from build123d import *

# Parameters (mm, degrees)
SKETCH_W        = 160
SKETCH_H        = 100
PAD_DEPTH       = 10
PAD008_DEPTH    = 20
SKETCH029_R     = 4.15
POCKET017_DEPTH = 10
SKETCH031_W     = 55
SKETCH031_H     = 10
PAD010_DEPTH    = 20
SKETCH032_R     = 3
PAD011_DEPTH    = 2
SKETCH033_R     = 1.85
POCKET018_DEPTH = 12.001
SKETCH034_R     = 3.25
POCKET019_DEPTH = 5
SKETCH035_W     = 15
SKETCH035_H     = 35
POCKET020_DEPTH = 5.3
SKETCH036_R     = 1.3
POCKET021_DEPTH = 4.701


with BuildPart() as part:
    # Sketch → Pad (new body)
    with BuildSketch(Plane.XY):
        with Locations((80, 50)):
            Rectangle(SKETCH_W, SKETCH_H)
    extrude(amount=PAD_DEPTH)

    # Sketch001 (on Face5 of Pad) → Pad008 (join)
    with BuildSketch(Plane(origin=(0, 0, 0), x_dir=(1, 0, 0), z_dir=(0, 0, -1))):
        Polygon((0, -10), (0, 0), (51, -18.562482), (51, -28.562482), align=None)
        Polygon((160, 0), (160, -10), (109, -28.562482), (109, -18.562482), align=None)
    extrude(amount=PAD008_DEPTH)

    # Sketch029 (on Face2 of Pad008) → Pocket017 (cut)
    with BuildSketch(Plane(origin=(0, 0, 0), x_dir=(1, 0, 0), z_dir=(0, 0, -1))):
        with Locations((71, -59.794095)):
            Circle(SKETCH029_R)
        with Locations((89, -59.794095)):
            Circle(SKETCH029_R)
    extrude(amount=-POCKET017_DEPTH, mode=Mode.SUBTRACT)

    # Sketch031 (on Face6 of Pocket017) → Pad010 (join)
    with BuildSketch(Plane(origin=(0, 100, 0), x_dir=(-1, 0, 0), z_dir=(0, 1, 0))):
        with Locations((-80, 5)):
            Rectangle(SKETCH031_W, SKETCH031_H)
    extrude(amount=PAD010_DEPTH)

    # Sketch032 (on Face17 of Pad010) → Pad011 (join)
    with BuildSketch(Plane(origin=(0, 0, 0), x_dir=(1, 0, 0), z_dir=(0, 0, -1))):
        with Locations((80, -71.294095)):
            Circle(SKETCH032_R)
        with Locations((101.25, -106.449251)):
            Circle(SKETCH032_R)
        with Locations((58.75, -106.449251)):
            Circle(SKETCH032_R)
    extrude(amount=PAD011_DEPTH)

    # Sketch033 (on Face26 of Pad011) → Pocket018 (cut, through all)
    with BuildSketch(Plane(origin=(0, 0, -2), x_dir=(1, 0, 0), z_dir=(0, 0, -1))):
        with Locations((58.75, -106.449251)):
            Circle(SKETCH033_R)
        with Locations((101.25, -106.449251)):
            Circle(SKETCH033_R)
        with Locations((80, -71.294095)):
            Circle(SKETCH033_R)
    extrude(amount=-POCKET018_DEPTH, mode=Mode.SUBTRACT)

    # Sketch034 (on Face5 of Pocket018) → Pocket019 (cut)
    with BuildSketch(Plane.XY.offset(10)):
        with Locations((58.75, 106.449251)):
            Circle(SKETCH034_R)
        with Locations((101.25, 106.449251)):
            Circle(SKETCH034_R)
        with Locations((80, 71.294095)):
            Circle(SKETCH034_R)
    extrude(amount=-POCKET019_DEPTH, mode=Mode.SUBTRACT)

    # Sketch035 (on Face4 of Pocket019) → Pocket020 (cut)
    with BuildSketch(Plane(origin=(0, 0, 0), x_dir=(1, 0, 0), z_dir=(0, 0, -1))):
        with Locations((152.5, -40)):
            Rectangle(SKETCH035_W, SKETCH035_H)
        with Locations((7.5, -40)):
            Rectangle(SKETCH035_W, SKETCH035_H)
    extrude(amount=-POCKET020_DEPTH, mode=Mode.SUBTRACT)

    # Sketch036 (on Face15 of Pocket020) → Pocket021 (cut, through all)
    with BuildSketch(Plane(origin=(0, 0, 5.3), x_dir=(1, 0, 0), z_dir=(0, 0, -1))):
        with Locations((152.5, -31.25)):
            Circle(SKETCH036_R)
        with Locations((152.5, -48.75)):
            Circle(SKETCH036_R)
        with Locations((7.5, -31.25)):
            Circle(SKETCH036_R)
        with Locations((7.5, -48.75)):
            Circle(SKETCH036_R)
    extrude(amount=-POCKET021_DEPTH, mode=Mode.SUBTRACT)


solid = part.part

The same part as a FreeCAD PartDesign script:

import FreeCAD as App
import Part
import Sketcher
Q = App.Units.Quantity

doc = App.newDocument("Part")
params = doc.addObject("Spreadsheet::Sheet", "Params")
for row, (alias, value) in enumerate([
    ("sketch1_width", "160 mm"),
    ("sketch1_height", "100 mm"),
    ("pad1_length", "10 mm"),
    ("sketch2_height", "10 mm"),
    ("pad2_length", "20 mm"),
    ("sketch3_diameter", "8.3 mm"),
    ("pocket1_length", "10 mm"),
    ("sketch4_width", "55 mm"),
    ("sketch4_height", "10 mm"),
    ("pad3_length", "20 mm"),
    ("sketch5_diameter", "6 mm"),
    ("pad4_length", "2 mm"),
    ("sketch6_diameter", "3.7 mm"),
    ("sketch7_diameter", "6.5 mm"),
    ("pocket3_length", "5 mm"),
    ("sketch8_width", "15 mm"),
    ("sketch8_height", "35 mm"),
    ("pocket4_length", "5.3 mm"),
    ("sketch9_diameter", "2.6 mm"),
], start=1):
    params.set(f"A{row}", alias)
    params.set(f"B{row}", "=" + value)
    params.setAlias(f"B{row}", alias)

body = doc.addObject("PartDesign::Body", "Body")

# Sketch on XY plane
sketch1 = doc.addObject("Sketcher::SketchObject", "Sketch")
body.addObject(sketch1)
sketch1.AttachmentSupport = (doc.XY_Plane, [""])
sketch1.MapMode = "FlatFace"
sketch1.addGeometry(Part.LineSegment(App.Vector(0, 100, 0), App.Vector(0, 0, 0)), False)
sketch1.addGeometry(Part.LineSegment(App.Vector(0, 0, 0), App.Vector(160, 0, 0)), False)
sketch1.addGeometry(Part.LineSegment(App.Vector(160, 0, 0), App.Vector(160, 100, 0)), False)
sketch1.addGeometry(Part.LineSegment(App.Vector(160, 100, 0), App.Vector(0, 100, 0)), False)
sketch1.addConstraint(Sketcher.Constraint("Coincident", 0, 2, 1, 1))
sketch1.addConstraint(Sketcher.Constraint("Coincident", 1, 2, 2, 1))
sketch1.addConstraint(Sketcher.Constraint("Coincident", 2, 2, 3, 1))
sketch1.addConstraint(Sketcher.Constraint("Coincident", 3, 2, 0, 1))
sketch1.addConstraint(Sketcher.Constraint("Vertical", 0))
sketch1.addConstraint(Sketcher.Constraint("Horizontal", 1))
sketch1.addConstraint(Sketcher.Constraint("Vertical", 2))
sketch1.addConstraint(Sketcher.Constraint("Horizontal", 3))
sketch1.addConstraint(Sketcher.Constraint("Coincident", 0, 2, -1, 1))
sketch1.addConstraint(Sketcher.Constraint("DistanceX", 1, 1, 1, 2, 160.0))
sketch1.addConstraint(Sketcher.Constraint("DistanceY", 0, 2, 0, 1, 100.0))
sketch1.setExpression("Constraints[9]", "Params.sketch1_width")
sketch1.setExpression("Constraints[10]", "Params.sketch1_height")
pad1 = doc.addObject("PartDesign::Pad", "Pad")
body.addObject(pad1)
pad1.Profile = sketch1
pad1.setExpression("Length", "Params.pad1_length")

# Sketch on XY plane
sketch2 = doc.addObject("Sketcher::SketchObject", "Sketch001")
body.addObject(sketch2)
sketch2.AttachmentSupport = (doc.XY_Plane, [""])
sketch2.MapMode = "FlatFace"
sketch2.addGeometry(Part.LineSegment(App.Vector(0, 0, 0), App.Vector(0, 10, 0)), False)
sketch2.addGeometry(Part.LineSegment(App.Vector(0, 10, 0), App.Vector(51, 28.562482, 0)), False)
sketch2.addGeometry(Part.LineSegment(App.Vector(51, 28.562482, 0), App.Vector(51, 18.562482, 0)), False)
sketch2.addGeometry(Part.LineSegment(App.Vector(51, 18.562482, 0), App.Vector(0, 0, 0)), False)
sketch2.addGeometry(Part.LineSegment(App.Vector(160, 10, 0), App.Vector(160, 0, 0)), False)
sketch2.addGeometry(Part.LineSegment(App.Vector(160, 0, 0), App.Vector(109, 18.562482, 0)), False)
sketch2.addGeometry(Part.LineSegment(App.Vector(109, 18.562482, 0), App.Vector(109, 28.562482, 0)), False)
sketch2.addGeometry(Part.LineSegment(App.Vector(109, 28.562482, 0), App.Vector(160, 10, 0)), False)
sketch2.addConstraint(Sketcher.Constraint("Coincident", 0, 2, 1, 1))
sketch2.addConstraint(Sketcher.Constraint("Coincident", 1, 2, 2, 1))
sketch2.addConstraint(Sketcher.Constraint("Coincident", 2, 2, 3, 1))
sketch2.addConstraint(Sketcher.Constraint("Coincident", 3, 2, 0, 1))
sketch2.addConstraint(Sketcher.Constraint("Coincident", 4, 2, 5, 1))
sketch2.addConstraint(Sketcher.Constraint("Coincident", 5, 2, 6, 1))
sketch2.addConstraint(Sketcher.Constraint("Coincident", 6, 2, 7, 1))
sketch2.addConstraint(Sketcher.Constraint("Coincident", 7, 2, 4, 1))
sketch2.addConstraint(Sketcher.Constraint("Vertical", 0))
sketch2.addConstraint(Sketcher.Constraint("Vertical", 2))
sketch2.addConstraint(Sketcher.Constraint("Vertical", 4))
sketch2.addConstraint(Sketcher.Constraint("Vertical", 6))
sketch2.addConstraint(Sketcher.Constraint("Coincident", 3, 2, -1, 1))
sketch2.addConstraint(Sketcher.Constraint("PointOnObject", 4, 2, -1))
sketch2.addConstraint(Sketcher.Constraint("Parallel", 1, 3))
sketch2.addConstraint(Sketcher.Constraint("Parallel", 5, 7))
sketch2.addConstraint(Sketcher.Constraint("Horizontal", 2, 2, 5, 2))
sketch2.addConstraint(Sketcher.Constraint("Horizontal", 1, 2, 6, 2))
sketch2.addConstraint(Sketcher.Constraint("Equal", 3, 5))
sketch2.addConstraint(Sketcher.Constraint("DistanceY", 0, 1, 0, 2, 10.0))
sketch2.addConstraint(Sketcher.Constraint("Angle", 1, Q("20 deg")))
sketch2.addConstraint(Sketcher.Constraint("DistanceX", -1, 1, 1, 2, 51.0))
sketch2.addConstraint(Sketcher.Constraint("DistanceX", -1, 1, 4, 2, 160.0))
sketch2.setExpression("Constraints[19]", "Params.sketch2_height")
pad2 = doc.addObject("PartDesign::Pad", "Pad001")
body.addObject(pad2)
pad2.Profile = sketch2
pad2.setExpression("Length", "Params.pad2_length")
pad2.Reversed = True

# Sketch on XY plane
sketch3 = doc.addObject("Sketcher::SketchObject", "Sketch002")
body.addObject(sketch3)
sketch3.AttachmentSupport = (doc.XY_Plane, [""])
sketch3.MapMode = "FlatFace"
sketch3.addGeometry(Part.Circle(App.Vector(71, 59.8, 0), App.Vector(0, 0, 1), 4.2), False)
sketch3.addGeometry(Part.Circle(App.Vector(89, 59.8, 0), App.Vector(0, 0, 1), 4.2), False)
sketch3.addConstraint(Sketcher.Constraint("Equal", 0, 1))
sketch3.addConstraint(Sketcher.Constraint("Horizontal", 0, 3, 1, 3))
sketch3.addConstraint(Sketcher.Constraint("Diameter", 0, 8.3))
sketch3.addConstraint(Sketcher.Constraint("DistanceX", -1, 1, 0, 3, 71.0))
sketch3.addConstraint(Sketcher.Constraint("DistanceX", -1, 1, 1, 3, 89.0))
sketch3.addConstraint(Sketcher.Constraint("DistanceY", -1, 1, 0, 3, 59.794095))
sketch3.setExpression("Constraints[2]", "Params.sketch3_diameter")
pocket1 = doc.addObject("PartDesign::Pocket", "Pocket")
body.addObject(pocket1)
pocket1.Profile = sketch3
pocket1.setExpression("Length", "Params.pocket1_length")
pocket1.Reversed = True

# Sketch on XZ plane
sketch4 = doc.addObject("Sketcher::SketchObject", "Sketch003")
body.addObject(sketch4)
sketch4.AttachmentSupport = (doc.XZ_Plane, [""])
sketch4.MapMode = "FlatFace"
sketch4.AttachmentOffset = App.Placement(App.Vector(0, 0, -100), App.Rotation())
sketch4.addGeometry(Part.LineSegment(App.Vector(108, 10, 0), App.Vector(108, 0, 0)), False)
sketch4.addGeometry(Part.LineSegment(App.Vector(108, 0, 0), App.Vector(52, 0, 0)), False)
sketch4.addGeometry(Part.LineSegment(App.Vector(52, 0, 0), App.Vector(52, 10, 0)), False)
sketch4.addGeometry(Part.LineSegment(App.Vector(52, 10, 0), App.Vector(108, 10, 0)), False)
sketch4.addConstraint(Sketcher.Constraint("Coincident", 0, 2, 1, 1))
sketch4.addConstraint(Sketcher.Constraint("Coincident", 1, 2, 2, 1))
sketch4.addConstraint(Sketcher.Constraint("Coincident", 2, 2, 3, 1))
sketch4.addConstraint(Sketcher.Constraint("Coincident", 3, 2, 0, 1))
sketch4.addConstraint(Sketcher.Constraint("Vertical", 0))
sketch4.addConstraint(Sketcher.Constraint("Horizontal", 1))
sketch4.addConstraint(Sketcher.Constraint("Vertical", 2))
sketch4.addConstraint(Sketcher.Constraint("Horizontal", 3))
sketch4.addConstraint(Sketcher.Constraint("PointOnObject", 0, 2, -1))
sketch4.addConstraint(Sketcher.Constraint("DistanceX", 1, 2, 1, 1, 55.0))
sketch4.addConstraint(Sketcher.Constraint("DistanceY", 0, 2, 0, 1, 10.0))
sketch4.addConstraint(Sketcher.Constraint("DistanceX", -1, 1, 0, 2, 107.5))
sketch4.setExpression("Constraints[9]", "Params.sketch4_width")
sketch4.setExpression("Constraints[10]", "Params.sketch4_height")
pad3 = doc.addObject("PartDesign::Pad", "Pad002")
body.addObject(pad3)
pad3.Profile = sketch4
pad3.setExpression("Length", "Params.pad3_length")
pad3.Reversed = True

# Sketch on XY plane
sketch5 = doc.addObject("Sketcher::SketchObject", "Sketch004")
body.addObject(sketch5)
sketch5.AttachmentSupport = (doc.XY_Plane, [""])
sketch5.MapMode = "FlatFace"
sketch5.addGeometry(Part.Circle(App.Vector(80, 71.3, 0), App.Vector(0, 0, 1), 3), False)
sketch5.addGeometry(Part.Circle(App.Vector(101.2, 106.4, 0), App.Vector(0, 0, 1), 3), False)
sketch5.addGeometry(Part.Circle(App.Vector(58.8, 106.4, 0), App.Vector(0, 0, 1), 3), False)
sketch5.addConstraint(Sketcher.Constraint("Equal", 0, 1))
sketch5.addConstraint(Sketcher.Constraint("Equal", 1, 2))
sketch5.addConstraint(Sketcher.Constraint("Horizontal", 1, 3, 2, 3))
sketch5.addConstraint(Sketcher.Constraint("Diameter", 0, 6.0))
sketch5.addConstraint(Sketcher.Constraint("DistanceX", -1, 1, 0, 3, 80.0))
sketch5.addConstraint(Sketcher.Constraint("DistanceX", 2, 3, 1, 3, 42.5))
sketch5.addConstraint(Sketcher.Constraint("DistanceX", -1, 1, 1, 3, 101.25))
sketch5.addConstraint(Sketcher.Constraint("DistanceY", -1, 1, 1, 3, 106.449251))
sketch5.addConstraint(Sketcher.Constraint("DistanceY", -1, 1, 0, 3, 71.294095))
sketch5.setExpression("Constraints[3]", "Params.sketch5_diameter")
pad4 = doc.addObject("PartDesign::Pad", "Pad003")
body.addObject(pad4)
pad4.Profile = sketch5
pad4.setExpression("Length", "Params.pad4_length")
pad4.Reversed = True

# Sketch on XY plane
sketch6 = doc.addObject("Sketcher::SketchObject", "Sketch005")
body.addObject(sketch6)
sketch6.AttachmentSupport = (doc.XY_Plane, [""])
sketch6.MapMode = "FlatFace"
sketch6.AttachmentOffset = App.Placement(App.Vector(0, 0, -2), App.Rotation())
sketch6.addGeometry(Part.Circle(App.Vector(58.8, 106.4, 0), App.Vector(0, 0, 1), 1.9), False)
sketch6.addGeometry(Part.Circle(App.Vector(101.2, 106.4, 0), App.Vector(0, 0, 1), 1.9), False)
sketch6.addGeometry(Part.Circle(App.Vector(80, 71.3, 0), App.Vector(0, 0, 1), 1.9), False)
sketch6.addConstraint(Sketcher.Constraint("Equal", 0, 1))
sketch6.addConstraint(Sketcher.Constraint("Equal", 1, 2))
sketch6.addConstraint(Sketcher.Constraint("Horizontal", 0, 3, 1, 3))
sketch6.addConstraint(Sketcher.Constraint("Diameter", 0, 3.7))
sketch6.addConstraint(Sketcher.Constraint("DistanceX", -1, 1, 2, 3, 80.0))
sketch6.addConstraint(Sketcher.Constraint("DistanceX", 0, 3, 1, 3, 42.5))
sketch6.addConstraint(Sketcher.Constraint("DistanceX", -1, 1, 0, 3, 58.75))
sketch6.addConstraint(Sketcher.Constraint("DistanceY", -1, 1, 0, 3, 106.449251))
sketch6.addConstraint(Sketcher.Constraint("DistanceY", -1, 1, 2, 3, 71.294095))
sketch6.setExpression("Constraints[3]", "Params.sketch6_diameter")
pocket2 = doc.addObject("PartDesign::Pocket", "Pocket001")
body.addObject(pocket2)
pocket2.Profile = sketch6
pocket2.Type = "ThroughAll"
pocket2.Reversed = True

# Sketch on XY plane
sketch7 = doc.addObject("Sketcher::SketchObject", "Sketch006")
body.addObject(sketch7)
sketch7.AttachmentSupport = (doc.XY_Plane, [""])
sketch7.MapMode = "FlatFace"
sketch7.AttachmentOffset = App.Placement(App.Vector(0, 0, 10), App.Rotation())
sketch7.addGeometry(Part.Circle(App.Vector(58.8, 106.4, 0), App.Vector(0, 0, 1), 3.2), False)
sketch7.addGeometry(Part.Circle(App.Vector(101.2, 106.4, 0), App.Vector(0, 0, 1), 3.2), False)
sketch7.addGeometry(Part.Circle(App.Vector(80, 71.3, 0), App.Vector(0, 0, 1), 3.2), False)
sketch7.addConstraint(Sketcher.Constraint("Equal", 0, 1))
sketch7.addConstraint(Sketcher.Constraint("Equal", 1, 2))
sketch7.addConstraint(Sketcher.Constraint("Horizontal", 0, 3, 1, 3))
sketch7.addConstraint(Sketcher.Constraint("Diameter", 0, 6.5))
sketch7.addConstraint(Sketcher.Constraint("DistanceX", -1, 1, 2, 3, 80.0))
sketch7.addConstraint(Sketcher.Constraint("DistanceX", 0, 3, 1, 3, 42.5))
sketch7.addConstraint(Sketcher.Constraint("DistanceX", -1, 1, 0, 3, 58.75))
sketch7.addConstraint(Sketcher.Constraint("DistanceY", -1, 1, 0, 3, 106.449251))
sketch7.addConstraint(Sketcher.Constraint("DistanceY", -1, 1, 2, 3, 71.294095))
sketch7.setExpression("Constraints[3]", "Params.sketch7_diameter")
pocket3 = doc.addObject("PartDesign::Pocket", "Pocket002")
body.addObject(pocket3)
pocket3.Profile = sketch7
pocket3.setExpression("Length", "Params.pocket3_length")

# Sketch on XY plane
sketch8 = doc.addObject("Sketcher::SketchObject", "Sketch007")
body.addObject(sketch8)
sketch8.AttachmentSupport = (doc.XY_Plane, [""])
sketch8.MapMode = "FlatFace"
sketch8.addGeometry(Part.LineSegment(App.Vector(145, 22, 0), App.Vector(145, 58, 0)), False)
sketch8.addGeometry(Part.LineSegment(App.Vector(145, 58, 0), App.Vector(160, 58, 0)), False)
sketch8.addGeometry(Part.LineSegment(App.Vector(160, 58, 0), App.Vector(160, 22, 0)), False)
sketch8.addGeometry(Part.LineSegment(App.Vector(160, 22, 0), App.Vector(145, 22, 0)), False)
sketch8.addGeometry(Part.LineSegment(App.Vector(0, 22, 0), App.Vector(0, 58, 0)), False)
sketch8.addGeometry(Part.LineSegment(App.Vector(0, 58, 0), App.Vector(15, 58, 0)), False)
sketch8.addGeometry(Part.LineSegment(App.Vector(15, 58, 0), App.Vector(15, 22, 0)), False)
sketch8.addGeometry(Part.LineSegment(App.Vector(15, 22, 0), App.Vector(0, 22, 0)), False)
sketch8.addConstraint(Sketcher.Constraint("Coincident", 0, 2, 1, 1))
sketch8.addConstraint(Sketcher.Constraint("Coincident", 1, 2, 2, 1))
sketch8.addConstraint(Sketcher.Constraint("Coincident", 2, 2, 3, 1))
sketch8.addConstraint(Sketcher.Constraint("Coincident", 3, 2, 0, 1))
sketch8.addConstraint(Sketcher.Constraint("Coincident", 4, 2, 5, 1))
sketch8.addConstraint(Sketcher.Constraint("Coincident", 5, 2, 6, 1))
sketch8.addConstraint(Sketcher.Constraint("Coincident", 6, 2, 7, 1))
sketch8.addConstraint(Sketcher.Constraint("Coincident", 7, 2, 4, 1))
sketch8.addConstraint(Sketcher.Constraint("Vertical", 0))
sketch8.addConstraint(Sketcher.Constraint("Horizontal", 1))
sketch8.addConstraint(Sketcher.Constraint("Vertical", 2))
sketch8.addConstraint(Sketcher.Constraint("Horizontal", 3))
sketch8.addConstraint(Sketcher.Constraint("Vertical", 4))
sketch8.addConstraint(Sketcher.Constraint("Horizontal", 5))
sketch8.addConstraint(Sketcher.Constraint("Vertical", 6))
sketch8.addConstraint(Sketcher.Constraint("Horizontal", 7))
sketch8.addConstraint(Sketcher.Constraint("PointOnObject", 4, 2, -2))
sketch8.addConstraint(Sketcher.Constraint("Horizontal", 1, 2, 4, 2))
sketch8.addConstraint(Sketcher.Constraint("Horizontal", 3, 2, 6, 2))
sketch8.addConstraint(Sketcher.Constraint("Equal", 3, 5))
sketch8.addConstraint(Sketcher.Constraint("DistanceX", 1, 1, 1, 2, 15.0))
sketch8.addConstraint(Sketcher.Constraint("DistanceY", 0, 1, 0, 2, 35.0))
sketch8.addConstraint(Sketcher.Constraint("DistanceX", -1, 1, 0, 2, 145.0))
sketch8.addConstraint(Sketcher.Constraint("DistanceY", -1, 1, 0, 2, 57.5))
sketch8.setExpression("Constraints[20]", "Params.sketch8_width")
sketch8.setExpression("Constraints[21]", "Params.sketch8_height")
pocket4 = doc.addObject("PartDesign::Pocket", "Pocket003")
body.addObject(pocket4)
pocket4.Profile = sketch8
pocket4.setExpression("Length", "Params.pocket4_length")
pocket4.Reversed = True

# Sketch on XY plane
sketch9 = doc.addObject("Sketcher::SketchObject", "Sketch008")
body.addObject(sketch9)
sketch9.AttachmentSupport = (doc.XY_Plane, [""])
sketch9.MapMode = "FlatFace"
sketch9.AttachmentOffset = App.Placement(App.Vector(0, 0, 5.3), App.Rotation())
sketch9.addGeometry(Part.Circle(App.Vector(152.5, 31.2, 0), App.Vector(0, 0, 1), 1.3), False)
sketch9.addGeometry(Part.Circle(App.Vector(152.5, 48.8, 0), App.Vector(0, 0, 1), 1.3), False)
sketch9.addGeometry(Part.Circle(App.Vector(7.5, 31.2, 0), App.Vector(0, 0, 1), 1.3), False)
sketch9.addGeometry(Part.Circle(App.Vector(7.5, 48.8, 0), App.Vector(0, 0, 1), 1.3), False)
sketch9.addConstraint(Sketcher.Constraint("Equal", 0, 1))
sketch9.addConstraint(Sketcher.Constraint("Equal", 1, 2))
sketch9.addConstraint(Sketcher.Constraint("Equal", 2, 3))
sketch9.addConstraint(Sketcher.Constraint("Horizontal", 0, 3, 2, 3))
sketch9.addConstraint(Sketcher.Constraint("Horizontal", 1, 3, 3, 3))
sketch9.addConstraint(Sketcher.Constraint("Vertical", 0, 3, 1, 3))
sketch9.addConstraint(Sketcher.Constraint("Vertical", 2, 3, 3, 3))
sketch9.addConstraint(Sketcher.Constraint("Diameter", 0, 2.6))
sketch9.addConstraint(Sketcher.Constraint("DistanceX", 2, 3, 0, 3, 145.0))
sketch9.addConstraint(Sketcher.Constraint("DistanceX", -1, 1, 0, 3, 152.5))
sketch9.addConstraint(Sketcher.Constraint("DistanceY", 0, 3, 1, 3, 17.5))
sketch9.addConstraint(Sketcher.Constraint("DistanceY", -1, 1, 0, 3, 31.25))
sketch9.setExpression("Constraints[7]", "Params.sketch9_diameter")
pocket5 = doc.addObject("PartDesign::Pocket", "Pocket004")
body.addObject(pocket5)
pocket5.Profile = sketch9
pocket5.Type = "ThroughAll"
pocket5.Reversed = True

doc.recompute()
